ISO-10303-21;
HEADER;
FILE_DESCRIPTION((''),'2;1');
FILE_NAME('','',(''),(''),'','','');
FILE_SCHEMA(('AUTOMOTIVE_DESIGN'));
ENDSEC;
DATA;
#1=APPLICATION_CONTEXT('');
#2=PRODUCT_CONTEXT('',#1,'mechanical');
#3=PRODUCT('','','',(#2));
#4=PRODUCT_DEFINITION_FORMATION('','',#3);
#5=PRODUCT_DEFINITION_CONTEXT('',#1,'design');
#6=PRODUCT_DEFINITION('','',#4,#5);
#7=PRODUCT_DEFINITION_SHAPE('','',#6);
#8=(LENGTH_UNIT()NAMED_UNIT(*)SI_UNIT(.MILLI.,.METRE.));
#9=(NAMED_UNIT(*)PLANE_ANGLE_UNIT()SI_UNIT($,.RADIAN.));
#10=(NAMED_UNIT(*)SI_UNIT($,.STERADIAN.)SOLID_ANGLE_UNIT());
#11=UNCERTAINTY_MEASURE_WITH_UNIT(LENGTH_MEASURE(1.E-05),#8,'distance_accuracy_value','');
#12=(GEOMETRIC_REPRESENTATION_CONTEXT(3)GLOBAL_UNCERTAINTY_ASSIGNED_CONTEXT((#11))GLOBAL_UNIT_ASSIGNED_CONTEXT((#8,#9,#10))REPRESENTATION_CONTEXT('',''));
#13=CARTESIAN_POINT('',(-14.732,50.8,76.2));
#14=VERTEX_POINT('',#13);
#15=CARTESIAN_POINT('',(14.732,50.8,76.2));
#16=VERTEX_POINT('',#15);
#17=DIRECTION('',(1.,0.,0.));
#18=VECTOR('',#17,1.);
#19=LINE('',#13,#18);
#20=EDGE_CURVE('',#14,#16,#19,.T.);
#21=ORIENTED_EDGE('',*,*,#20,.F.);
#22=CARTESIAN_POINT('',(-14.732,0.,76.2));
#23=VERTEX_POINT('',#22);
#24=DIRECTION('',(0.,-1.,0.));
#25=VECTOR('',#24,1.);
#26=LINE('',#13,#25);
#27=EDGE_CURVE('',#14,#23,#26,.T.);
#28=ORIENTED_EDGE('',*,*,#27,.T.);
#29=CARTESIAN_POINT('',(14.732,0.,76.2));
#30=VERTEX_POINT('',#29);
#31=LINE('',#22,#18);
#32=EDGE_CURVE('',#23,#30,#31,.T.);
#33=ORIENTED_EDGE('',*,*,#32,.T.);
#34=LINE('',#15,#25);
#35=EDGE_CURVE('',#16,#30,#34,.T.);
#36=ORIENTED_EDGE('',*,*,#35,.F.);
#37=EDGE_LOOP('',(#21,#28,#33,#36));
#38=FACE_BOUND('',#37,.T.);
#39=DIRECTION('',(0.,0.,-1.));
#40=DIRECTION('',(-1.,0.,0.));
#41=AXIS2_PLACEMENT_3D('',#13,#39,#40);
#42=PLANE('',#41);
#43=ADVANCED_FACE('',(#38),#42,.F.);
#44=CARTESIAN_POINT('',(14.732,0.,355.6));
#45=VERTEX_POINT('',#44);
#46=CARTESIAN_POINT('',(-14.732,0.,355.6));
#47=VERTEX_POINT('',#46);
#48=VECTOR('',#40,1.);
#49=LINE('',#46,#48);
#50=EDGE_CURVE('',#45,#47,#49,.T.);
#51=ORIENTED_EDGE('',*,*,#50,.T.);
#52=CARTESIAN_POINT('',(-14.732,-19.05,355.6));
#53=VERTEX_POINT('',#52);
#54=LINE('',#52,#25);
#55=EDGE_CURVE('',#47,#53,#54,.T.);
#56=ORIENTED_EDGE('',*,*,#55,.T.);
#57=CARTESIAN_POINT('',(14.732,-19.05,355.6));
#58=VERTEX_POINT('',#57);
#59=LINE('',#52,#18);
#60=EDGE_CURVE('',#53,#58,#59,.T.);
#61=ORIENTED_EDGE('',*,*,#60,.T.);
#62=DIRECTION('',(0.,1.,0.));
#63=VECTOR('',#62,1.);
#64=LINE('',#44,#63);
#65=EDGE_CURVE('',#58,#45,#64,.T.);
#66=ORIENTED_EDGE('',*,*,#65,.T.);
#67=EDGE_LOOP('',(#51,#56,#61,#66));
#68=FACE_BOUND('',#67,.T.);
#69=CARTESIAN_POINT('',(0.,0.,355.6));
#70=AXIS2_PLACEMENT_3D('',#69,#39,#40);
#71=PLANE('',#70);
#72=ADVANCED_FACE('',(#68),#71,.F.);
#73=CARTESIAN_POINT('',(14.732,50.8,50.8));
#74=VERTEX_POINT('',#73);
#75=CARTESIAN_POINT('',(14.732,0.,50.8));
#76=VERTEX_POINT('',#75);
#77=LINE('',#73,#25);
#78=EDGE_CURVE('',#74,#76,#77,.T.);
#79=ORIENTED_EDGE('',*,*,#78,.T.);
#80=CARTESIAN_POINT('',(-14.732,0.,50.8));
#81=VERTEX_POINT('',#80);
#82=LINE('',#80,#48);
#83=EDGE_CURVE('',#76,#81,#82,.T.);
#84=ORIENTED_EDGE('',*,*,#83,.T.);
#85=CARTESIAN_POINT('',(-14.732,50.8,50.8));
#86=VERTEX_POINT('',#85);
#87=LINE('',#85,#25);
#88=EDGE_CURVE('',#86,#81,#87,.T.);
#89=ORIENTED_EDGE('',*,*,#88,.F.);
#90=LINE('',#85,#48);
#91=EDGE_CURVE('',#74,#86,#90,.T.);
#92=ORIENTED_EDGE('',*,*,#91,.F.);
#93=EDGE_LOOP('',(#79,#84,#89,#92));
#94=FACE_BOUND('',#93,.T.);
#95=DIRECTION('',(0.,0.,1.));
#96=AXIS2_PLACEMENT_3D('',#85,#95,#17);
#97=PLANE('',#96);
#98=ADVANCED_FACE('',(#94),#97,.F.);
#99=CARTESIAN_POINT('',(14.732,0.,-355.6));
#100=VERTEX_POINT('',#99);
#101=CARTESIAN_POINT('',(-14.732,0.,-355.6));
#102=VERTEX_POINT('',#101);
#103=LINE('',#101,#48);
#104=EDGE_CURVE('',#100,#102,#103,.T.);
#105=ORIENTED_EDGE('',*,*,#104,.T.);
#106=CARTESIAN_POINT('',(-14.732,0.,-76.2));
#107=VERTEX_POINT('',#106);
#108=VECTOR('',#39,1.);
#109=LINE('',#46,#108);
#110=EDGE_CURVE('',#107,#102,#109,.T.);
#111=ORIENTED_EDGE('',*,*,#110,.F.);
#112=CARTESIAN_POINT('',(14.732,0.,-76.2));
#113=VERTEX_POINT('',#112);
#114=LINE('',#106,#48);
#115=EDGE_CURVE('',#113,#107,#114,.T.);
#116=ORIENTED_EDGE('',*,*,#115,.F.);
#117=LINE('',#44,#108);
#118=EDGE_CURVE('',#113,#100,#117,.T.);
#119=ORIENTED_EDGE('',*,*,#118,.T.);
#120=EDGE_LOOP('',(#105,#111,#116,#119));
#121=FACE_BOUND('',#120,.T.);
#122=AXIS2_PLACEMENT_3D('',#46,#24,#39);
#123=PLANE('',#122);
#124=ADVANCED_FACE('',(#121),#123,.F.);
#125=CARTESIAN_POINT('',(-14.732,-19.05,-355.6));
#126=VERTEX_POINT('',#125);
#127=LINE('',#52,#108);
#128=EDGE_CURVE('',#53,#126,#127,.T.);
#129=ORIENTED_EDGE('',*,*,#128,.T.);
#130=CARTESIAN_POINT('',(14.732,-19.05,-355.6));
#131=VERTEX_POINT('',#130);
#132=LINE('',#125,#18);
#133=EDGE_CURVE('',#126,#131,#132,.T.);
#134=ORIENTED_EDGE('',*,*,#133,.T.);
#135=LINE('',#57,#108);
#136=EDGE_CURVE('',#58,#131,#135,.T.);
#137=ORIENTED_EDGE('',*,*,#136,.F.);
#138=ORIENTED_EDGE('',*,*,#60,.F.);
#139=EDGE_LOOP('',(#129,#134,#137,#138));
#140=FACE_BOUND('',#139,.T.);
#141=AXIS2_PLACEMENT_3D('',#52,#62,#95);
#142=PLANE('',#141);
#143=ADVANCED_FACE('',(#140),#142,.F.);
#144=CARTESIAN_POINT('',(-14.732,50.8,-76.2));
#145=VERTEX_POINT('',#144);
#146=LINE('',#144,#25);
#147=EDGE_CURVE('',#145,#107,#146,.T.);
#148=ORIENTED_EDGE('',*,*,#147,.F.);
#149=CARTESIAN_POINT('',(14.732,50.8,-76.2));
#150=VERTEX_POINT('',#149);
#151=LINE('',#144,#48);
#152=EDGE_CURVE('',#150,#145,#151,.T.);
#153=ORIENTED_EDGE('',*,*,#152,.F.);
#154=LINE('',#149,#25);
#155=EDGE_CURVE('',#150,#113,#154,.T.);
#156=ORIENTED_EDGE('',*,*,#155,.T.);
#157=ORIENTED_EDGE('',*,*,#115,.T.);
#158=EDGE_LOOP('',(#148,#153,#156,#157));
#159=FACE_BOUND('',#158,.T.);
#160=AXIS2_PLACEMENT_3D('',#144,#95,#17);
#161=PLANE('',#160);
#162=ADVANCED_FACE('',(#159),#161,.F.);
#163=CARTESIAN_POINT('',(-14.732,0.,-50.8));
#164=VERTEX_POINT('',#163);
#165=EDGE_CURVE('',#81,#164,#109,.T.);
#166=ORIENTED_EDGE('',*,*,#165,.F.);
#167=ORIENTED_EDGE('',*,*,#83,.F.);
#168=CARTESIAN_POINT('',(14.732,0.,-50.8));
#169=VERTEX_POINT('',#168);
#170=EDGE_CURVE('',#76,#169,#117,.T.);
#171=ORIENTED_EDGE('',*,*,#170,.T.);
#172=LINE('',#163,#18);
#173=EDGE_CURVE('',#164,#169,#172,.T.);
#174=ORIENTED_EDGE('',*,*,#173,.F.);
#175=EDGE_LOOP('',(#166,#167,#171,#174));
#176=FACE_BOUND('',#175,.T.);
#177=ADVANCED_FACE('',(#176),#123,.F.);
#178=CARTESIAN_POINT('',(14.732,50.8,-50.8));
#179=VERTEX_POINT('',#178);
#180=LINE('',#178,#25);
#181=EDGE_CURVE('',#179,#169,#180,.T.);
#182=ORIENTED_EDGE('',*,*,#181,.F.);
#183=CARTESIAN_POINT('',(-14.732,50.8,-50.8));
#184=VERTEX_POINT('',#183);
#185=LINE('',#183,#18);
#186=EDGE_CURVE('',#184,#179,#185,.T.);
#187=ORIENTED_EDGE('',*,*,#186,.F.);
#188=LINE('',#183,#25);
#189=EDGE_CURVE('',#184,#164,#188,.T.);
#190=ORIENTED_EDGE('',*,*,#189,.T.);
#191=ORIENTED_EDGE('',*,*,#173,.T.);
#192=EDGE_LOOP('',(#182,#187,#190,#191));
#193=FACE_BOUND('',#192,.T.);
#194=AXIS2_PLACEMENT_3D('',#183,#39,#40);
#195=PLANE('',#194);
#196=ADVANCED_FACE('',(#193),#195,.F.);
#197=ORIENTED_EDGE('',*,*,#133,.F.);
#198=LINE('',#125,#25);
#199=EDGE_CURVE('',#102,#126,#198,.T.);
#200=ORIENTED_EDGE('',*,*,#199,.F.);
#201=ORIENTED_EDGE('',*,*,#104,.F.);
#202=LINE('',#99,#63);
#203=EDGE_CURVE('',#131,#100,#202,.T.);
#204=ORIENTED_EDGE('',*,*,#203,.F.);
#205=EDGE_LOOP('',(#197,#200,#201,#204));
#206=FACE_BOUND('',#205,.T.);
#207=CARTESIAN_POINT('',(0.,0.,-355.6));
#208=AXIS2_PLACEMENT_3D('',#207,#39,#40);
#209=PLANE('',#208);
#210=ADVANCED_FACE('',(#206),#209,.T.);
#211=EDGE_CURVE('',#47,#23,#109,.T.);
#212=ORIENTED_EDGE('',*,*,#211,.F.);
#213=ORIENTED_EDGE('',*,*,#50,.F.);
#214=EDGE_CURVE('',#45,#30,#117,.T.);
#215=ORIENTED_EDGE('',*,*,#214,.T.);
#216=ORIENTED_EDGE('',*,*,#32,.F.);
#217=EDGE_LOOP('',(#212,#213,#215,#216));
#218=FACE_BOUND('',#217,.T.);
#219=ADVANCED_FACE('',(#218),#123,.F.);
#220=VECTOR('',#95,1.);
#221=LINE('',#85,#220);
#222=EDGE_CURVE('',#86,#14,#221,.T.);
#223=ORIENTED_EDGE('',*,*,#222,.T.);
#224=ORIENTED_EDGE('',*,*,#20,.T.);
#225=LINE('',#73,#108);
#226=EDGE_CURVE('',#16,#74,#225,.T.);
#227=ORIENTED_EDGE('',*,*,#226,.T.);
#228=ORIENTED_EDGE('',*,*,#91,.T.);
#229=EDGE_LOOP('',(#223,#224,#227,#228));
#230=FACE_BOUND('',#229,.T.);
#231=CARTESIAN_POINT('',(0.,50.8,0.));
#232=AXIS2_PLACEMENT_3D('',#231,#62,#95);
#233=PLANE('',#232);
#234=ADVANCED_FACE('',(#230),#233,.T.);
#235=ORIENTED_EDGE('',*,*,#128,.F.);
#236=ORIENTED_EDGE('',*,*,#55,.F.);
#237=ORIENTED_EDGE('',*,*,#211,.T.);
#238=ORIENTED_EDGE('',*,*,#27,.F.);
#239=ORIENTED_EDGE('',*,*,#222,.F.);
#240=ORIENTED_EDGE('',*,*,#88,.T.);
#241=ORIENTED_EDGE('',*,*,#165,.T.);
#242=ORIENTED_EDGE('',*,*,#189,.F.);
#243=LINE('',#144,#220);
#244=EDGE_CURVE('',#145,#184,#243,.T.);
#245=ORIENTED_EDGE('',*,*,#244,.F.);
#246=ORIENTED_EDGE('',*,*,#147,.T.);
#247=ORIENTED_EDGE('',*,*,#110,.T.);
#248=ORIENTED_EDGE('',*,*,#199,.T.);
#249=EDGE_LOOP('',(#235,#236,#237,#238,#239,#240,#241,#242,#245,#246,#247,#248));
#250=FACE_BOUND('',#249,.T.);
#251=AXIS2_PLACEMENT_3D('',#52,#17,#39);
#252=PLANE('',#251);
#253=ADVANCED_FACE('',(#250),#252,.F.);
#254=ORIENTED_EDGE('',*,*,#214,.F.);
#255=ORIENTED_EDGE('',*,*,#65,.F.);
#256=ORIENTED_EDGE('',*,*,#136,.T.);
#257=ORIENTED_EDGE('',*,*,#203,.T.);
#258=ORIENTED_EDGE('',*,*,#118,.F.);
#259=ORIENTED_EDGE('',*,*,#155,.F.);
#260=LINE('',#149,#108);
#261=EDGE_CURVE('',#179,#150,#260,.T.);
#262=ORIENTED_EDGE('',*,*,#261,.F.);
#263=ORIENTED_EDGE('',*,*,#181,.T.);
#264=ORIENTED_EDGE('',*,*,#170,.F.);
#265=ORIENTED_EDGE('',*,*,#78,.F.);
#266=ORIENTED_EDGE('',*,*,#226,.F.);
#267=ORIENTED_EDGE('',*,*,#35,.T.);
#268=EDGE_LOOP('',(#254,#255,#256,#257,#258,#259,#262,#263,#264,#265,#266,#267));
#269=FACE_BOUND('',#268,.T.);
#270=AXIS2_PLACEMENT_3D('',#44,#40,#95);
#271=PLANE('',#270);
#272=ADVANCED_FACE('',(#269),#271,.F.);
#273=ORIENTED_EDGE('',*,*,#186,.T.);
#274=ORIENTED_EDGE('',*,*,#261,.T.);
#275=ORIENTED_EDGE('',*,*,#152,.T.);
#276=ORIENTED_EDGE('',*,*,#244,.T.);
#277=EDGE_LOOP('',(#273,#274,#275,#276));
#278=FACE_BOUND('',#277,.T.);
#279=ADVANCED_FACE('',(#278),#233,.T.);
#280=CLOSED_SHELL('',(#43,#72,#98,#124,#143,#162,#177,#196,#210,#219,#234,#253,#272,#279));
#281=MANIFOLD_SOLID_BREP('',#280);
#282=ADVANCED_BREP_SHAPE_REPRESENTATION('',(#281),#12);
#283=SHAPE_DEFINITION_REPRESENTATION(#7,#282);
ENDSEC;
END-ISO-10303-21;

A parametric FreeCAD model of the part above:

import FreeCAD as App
import Part
import Sketcher
from FreeCAD import Vector
Q = App.Units.Quantity


def add_polygon(sketch, points):
    """Adds a closed chain of lines whose ends are joined by coincident constraints."""
    first, n = sketch.GeometryCount, len(points)
    for a, b in zip(points, points[1:] + points[:1]):
        sketch.addGeometry(Part.LineSegment(App.Vector(*a, 0), App.Vector(*b, 0)), False)
    for i in range(n):
        sketch.addConstraint(Sketcher.Constraint("Coincident", first + i, 2, first + (i + 1) % n, 1))

doc = App.newDocument("Part")
body = doc.addObject("PartDesign::Body", "Body")

sketch1 = doc.addObject("Sketcher::SketchObject", "Sketch")
body.addObject(sketch1)
sketch1.AttachmentSupport = (doc.XY_Plane, [""])
sketch1.MapMode = "FlatFace"
add_polygon(sketch1, [(-15, 0), (-15, -19), (15, -19), (15, 0)])
sketch1.addConstraint(Sketcher.Constraint("Vertical", 0))
sketch1.addConstraint(Sketcher.Constraint("Horizontal", 1))
sketch1.addConstraint(Sketcher.Constraint("Vertical", 2))
sketch1.addConstraint(Sketcher.Constraint("Horizontal", 3))
sketch1.addConstraint(Sketcher.Constraint("Symmetric", 2, 2, 3, 2, -1, 1))
sketch1.addConstraint(Sketcher.Constraint("DistanceX", 1, 1, 1, 2, Q("1.16 in")))
sketch1.addConstraint(Sketcher.Constraint("DistanceY", 0, 2, 0, 1, Q("0.75 in")))
pad1 = doc.addObject("PartDesign::Pad", "Pad")
body.addObject(pad1)
pad1.Profile = sketch1
pad1.Length = Q("28 in")
pad1.Midplane = True

sketch2 = doc.addObject("Sketcher::SketchObject", "Sketch001")
body.addObject(sketch2)
sketch2.AttachmentSupport = (doc.XZ_Plane, [""])
sketch2.MapMode = "FlatFace"
add_polygon(sketch2, [(-15, -76), (-15, -51), (15, -51), (15, -76)])
add_polygon(sketch2, [(-15, 51), (-15, 76), (15, 76), (15, 51)])
sketch2.addConstraint(Sketcher.Constraint("Vertical", 0))
sketch2.addConstraint(Sketcher.Constraint("Horizontal", 1))
sketch2.addConstraint(Sketcher.Constraint("Vertical", 2))
sketch2.addConstraint(Sketcher.Constraint("Horizontal", 3))
sketch2.addConstraint(Sketcher.Constraint("Vertical", 4))
sketch2.addConstraint(Sketcher.Constraint("Horizontal", 5))
sketch2.addConstraint(Sketcher.Constraint("Vertical", 6))
sketch2.addConstraint(Sketcher.Constraint("Horizontal", 7))
sketch2.addConstraint(Sketcher.Constraint("Symmetric", 2, 2, 4, 2, -1, 1))
sketch2.addConstraint(Sketcher.Constraint("Symmetric", 0, 2, 6, 2, -1, 1))
sketch2.addConstraint(Sketcher.Constraint("Vertical", 3, 2, 4, 2))
sketch2.addConstraint(Sketcher.Constraint("DistanceY", 0, 1, 0, 2, Q("1 in")))
sketch2.addConstraint(Sketcher.Constraint("DistanceY", 0, 2, -1, 1, Q("2 in")))
sketch2.addConstraint(Sketcher.Constraint("DistanceX", 1, 1, 1, 2, Q("1.16 in")))
pad2 = doc.addObject("PartDesign::Pad", "Pad001")
body.addObject(pad2)
pad2.Profile = sketch2
pad2.Length = Q("2 in")
pad2.Reversed = True

doc.recompute()
